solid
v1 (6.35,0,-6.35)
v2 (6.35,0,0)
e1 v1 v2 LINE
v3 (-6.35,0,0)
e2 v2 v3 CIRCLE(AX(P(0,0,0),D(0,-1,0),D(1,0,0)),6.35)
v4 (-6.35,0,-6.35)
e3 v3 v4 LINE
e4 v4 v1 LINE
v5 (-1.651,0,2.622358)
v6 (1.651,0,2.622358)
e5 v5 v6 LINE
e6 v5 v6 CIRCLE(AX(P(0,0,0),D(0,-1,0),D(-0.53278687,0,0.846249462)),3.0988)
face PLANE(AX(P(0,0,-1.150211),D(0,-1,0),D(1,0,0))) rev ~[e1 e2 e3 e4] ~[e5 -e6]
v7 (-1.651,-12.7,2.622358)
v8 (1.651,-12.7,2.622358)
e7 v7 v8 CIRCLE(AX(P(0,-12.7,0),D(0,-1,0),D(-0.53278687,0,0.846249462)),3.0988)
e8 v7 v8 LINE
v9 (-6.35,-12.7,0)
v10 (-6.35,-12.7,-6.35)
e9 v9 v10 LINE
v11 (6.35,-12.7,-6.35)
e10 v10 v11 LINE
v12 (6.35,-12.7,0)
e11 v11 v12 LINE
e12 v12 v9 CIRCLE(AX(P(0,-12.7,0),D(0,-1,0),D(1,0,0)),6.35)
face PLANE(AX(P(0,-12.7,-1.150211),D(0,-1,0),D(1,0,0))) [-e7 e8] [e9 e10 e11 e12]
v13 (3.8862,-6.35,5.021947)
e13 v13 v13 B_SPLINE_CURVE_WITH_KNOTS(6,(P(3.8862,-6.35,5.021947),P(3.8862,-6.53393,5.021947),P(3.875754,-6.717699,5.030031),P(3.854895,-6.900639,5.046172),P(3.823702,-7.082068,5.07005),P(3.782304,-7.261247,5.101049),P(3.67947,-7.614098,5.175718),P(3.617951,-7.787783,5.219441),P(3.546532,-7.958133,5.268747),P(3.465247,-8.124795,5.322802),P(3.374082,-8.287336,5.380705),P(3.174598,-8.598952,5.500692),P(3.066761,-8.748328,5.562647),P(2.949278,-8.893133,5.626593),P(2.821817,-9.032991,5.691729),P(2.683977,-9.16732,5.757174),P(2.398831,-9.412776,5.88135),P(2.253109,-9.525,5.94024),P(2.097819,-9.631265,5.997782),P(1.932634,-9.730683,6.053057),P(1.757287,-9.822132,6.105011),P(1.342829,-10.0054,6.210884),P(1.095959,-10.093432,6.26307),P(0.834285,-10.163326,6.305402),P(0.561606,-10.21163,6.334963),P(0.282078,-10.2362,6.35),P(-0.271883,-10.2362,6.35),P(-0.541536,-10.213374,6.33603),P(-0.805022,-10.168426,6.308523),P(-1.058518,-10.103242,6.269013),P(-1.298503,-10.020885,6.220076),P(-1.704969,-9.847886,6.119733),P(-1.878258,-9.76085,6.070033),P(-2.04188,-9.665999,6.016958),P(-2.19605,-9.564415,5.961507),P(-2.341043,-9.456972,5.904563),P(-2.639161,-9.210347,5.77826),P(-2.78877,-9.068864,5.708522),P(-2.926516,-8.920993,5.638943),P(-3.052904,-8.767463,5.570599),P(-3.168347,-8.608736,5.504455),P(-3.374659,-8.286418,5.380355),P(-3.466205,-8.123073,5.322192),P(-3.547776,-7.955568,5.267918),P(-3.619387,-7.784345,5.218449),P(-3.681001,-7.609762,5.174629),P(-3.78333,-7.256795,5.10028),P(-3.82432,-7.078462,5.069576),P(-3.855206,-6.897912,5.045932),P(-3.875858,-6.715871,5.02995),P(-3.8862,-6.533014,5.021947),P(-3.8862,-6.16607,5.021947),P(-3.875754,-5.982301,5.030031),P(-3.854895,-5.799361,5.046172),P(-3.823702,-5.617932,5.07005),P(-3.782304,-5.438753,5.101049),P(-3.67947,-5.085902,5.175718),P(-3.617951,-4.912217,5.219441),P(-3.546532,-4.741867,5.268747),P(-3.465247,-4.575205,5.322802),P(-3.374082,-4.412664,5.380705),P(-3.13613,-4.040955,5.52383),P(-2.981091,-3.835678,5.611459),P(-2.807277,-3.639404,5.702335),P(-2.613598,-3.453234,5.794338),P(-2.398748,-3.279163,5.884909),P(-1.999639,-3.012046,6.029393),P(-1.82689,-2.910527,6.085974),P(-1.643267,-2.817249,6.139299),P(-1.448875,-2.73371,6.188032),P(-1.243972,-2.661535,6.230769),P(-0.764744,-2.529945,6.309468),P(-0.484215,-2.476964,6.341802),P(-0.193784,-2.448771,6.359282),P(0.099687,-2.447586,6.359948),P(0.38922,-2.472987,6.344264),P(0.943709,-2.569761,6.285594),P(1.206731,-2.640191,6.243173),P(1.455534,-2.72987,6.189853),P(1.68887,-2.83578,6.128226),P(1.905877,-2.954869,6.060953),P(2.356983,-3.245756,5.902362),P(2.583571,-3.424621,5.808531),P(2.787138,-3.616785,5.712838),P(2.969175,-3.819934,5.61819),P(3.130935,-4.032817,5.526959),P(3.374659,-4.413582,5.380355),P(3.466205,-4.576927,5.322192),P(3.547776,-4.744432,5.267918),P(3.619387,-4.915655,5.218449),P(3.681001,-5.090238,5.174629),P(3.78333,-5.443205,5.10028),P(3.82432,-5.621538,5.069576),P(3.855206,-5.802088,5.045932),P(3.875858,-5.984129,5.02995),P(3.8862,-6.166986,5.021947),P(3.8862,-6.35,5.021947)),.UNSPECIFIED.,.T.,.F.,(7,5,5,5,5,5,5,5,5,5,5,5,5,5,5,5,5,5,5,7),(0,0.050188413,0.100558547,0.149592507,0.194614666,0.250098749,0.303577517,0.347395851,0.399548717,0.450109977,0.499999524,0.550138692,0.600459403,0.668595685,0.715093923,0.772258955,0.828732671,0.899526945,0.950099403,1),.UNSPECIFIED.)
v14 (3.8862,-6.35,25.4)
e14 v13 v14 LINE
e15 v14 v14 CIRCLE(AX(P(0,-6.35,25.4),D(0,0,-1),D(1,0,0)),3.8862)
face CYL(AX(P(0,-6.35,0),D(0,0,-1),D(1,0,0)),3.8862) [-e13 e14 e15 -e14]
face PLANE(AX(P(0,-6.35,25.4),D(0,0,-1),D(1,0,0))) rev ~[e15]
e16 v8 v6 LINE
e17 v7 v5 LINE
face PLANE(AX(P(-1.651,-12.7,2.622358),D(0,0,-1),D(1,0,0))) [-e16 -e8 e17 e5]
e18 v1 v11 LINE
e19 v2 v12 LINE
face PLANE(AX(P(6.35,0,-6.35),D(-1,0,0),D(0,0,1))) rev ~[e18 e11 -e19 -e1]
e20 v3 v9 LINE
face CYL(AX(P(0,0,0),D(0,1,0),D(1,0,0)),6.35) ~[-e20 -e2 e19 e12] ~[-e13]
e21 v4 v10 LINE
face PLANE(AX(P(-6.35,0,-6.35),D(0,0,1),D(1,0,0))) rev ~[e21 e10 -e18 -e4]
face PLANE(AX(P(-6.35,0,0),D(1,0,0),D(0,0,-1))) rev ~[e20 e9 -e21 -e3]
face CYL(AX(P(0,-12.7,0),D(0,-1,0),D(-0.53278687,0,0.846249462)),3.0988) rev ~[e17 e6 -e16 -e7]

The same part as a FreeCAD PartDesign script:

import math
import FreeCAD as App
import Part
import Sketcher

V = App.Vector
Q = App.Units.Quantity

doc = App.newDocument("Part")
body = doc.addObject("PartDesign::Body", "Body")

# Sketch on XZ plane
sketch1 = doc.addObject("Sketcher::SketchObject", "Sketch")
body.addObject(sketch1)
sketch1.AttachmentSupport = (doc.XZ_Plane, [""])
sketch1.MapMode = "FlatFace"
sketch1.addGeometry(Part.ArcOfCircle(Part.Circle(V(0, 0, 0), V(0, 0, 1), 6), math.radians(0), math.radians(180)), False)
sketch1.addGeometry(Part.LineSegment(V(-6, 0, 0), V(-6, -6, 0)), False)
sketch1.addGeometry(Part.LineSegment(V(-6, -6, 0), V(6, -6, 0)), False)
sketch1.addGeometry(Part.LineSegment(V(6, -6, 0), V(6, 0, 0)), False)
sketch1.addConstraint(Sketcher.Constraint("Tangent", 0, 2, 1, 1))
sketch1.addConstraint(Sketcher.Constraint("Coincident", 1, 2, 2, 1))
sketch1.addConstraint(Sketcher.Constraint("Coincident", 2, 2, 3, 1))
sketch1.addConstraint(Sketcher.Constraint("Tangent", 3, 2, 0, 1))
sketch1.addConstraint(Sketcher.Constraint("Vertical", 1))
sketch1.addConstraint(Sketcher.Constraint("Horizontal", 2))
sketch1.addConstraint(Sketcher.Constraint("Vertical", 3))
sketch1.addConstraint(Sketcher.Constraint("Coincident", 0, 3, -1, 1))
sketch1.addConstraint(Sketcher.Constraint("Radius", 0, Q("0.25 in")))
sketch1.addConstraint(Sketcher.Constraint("DistanceY", 1, 2, 1, 1, Q("0.25 in")))
pad1 = doc.addObject("PartDesign::Pad", "Pad")
body.addObject(pad1)
pad1.Profile = sketch1
pad1.Length = Q("0.5 in")

# Sketch on XY plane
sketch2 = doc.addObject("Sketcher::SketchObject", "Sketch001")
body.addObject(sketch2)
sketch2.AttachmentSupport = (doc.XY_Plane, [""])
sketch2.MapMode = "FlatFace"
sketch2.addGeometry(Part.Circle(V(0, -6.3, 0), V(0, 0, 1), 3.9), False)
sketch2.addConstraint(Sketcher.Constraint("PointOnObject", 0, 3, -2))
sketch2.addConstraint(Sketcher.Constraint("Diameter", 0, Q("0.306 in")))
sketch2.addConstraint(Sketcher.Constraint("DistanceY", 0, 3, -1, 1, Q("0.25 in")))
pad2 = doc.addObject("PartDesign::Pad", "Pad001")
body.addObject(pad2)
pad2.Profile = sketch2
pad2.Length = Q("1 in")

# Sketch on XZ plane
sketch3 = doc.addObject("Sketcher::SketchObject", "Sketch002")
body.addObject(sketch3)
sketch3.AttachmentSupport = (doc.XZ_Plane, [""])
sketch3.MapMode = "FlatFace"
sketch3.AttachmentOffset = App.Placement(V(0, 0, 0.5 * 25.4), App.Rotation())
sketch3.addGeometry(Part.ArcOfCircle(Part.Circle(V(0, 0, 0), V(0, 0, 1), 3.1), math.radians(122), math.radians(418)), False)
sketch3.addGeometry(Part.LineSegment(V(1.7, 2.6, 0), V(-1.7, 2.6, 0)), False)
sketch3.addConstraint(Sketcher.Constraint("Coincident", 0, 1, 1, 2))
sketch3.addConstraint(Sketcher.Constraint("Coincident", 1, 1, 0, 2))
sketch3.addConstraint(Sketcher.Constraint("Horizontal", 1))
sketch3.addConstraint(Sketcher.Constraint("Coincident", 0, 3, -1, 1))
sketch3.addConstraint(Sketcher.Constraint("Radius", 0, Q("0.122 in")))
sketch3.addConstraint(Sketcher.Constraint("DistanceX", 1, 2, 1, 1, Q("0.13 in")))
pocket1 = doc.addObject("PartDesign::Pocket", "Pocket")
body.addObject(pocket1)
pocket1.Profile = sketch3
pocket1.Type = "ThroughAll"

doc.recompute()
